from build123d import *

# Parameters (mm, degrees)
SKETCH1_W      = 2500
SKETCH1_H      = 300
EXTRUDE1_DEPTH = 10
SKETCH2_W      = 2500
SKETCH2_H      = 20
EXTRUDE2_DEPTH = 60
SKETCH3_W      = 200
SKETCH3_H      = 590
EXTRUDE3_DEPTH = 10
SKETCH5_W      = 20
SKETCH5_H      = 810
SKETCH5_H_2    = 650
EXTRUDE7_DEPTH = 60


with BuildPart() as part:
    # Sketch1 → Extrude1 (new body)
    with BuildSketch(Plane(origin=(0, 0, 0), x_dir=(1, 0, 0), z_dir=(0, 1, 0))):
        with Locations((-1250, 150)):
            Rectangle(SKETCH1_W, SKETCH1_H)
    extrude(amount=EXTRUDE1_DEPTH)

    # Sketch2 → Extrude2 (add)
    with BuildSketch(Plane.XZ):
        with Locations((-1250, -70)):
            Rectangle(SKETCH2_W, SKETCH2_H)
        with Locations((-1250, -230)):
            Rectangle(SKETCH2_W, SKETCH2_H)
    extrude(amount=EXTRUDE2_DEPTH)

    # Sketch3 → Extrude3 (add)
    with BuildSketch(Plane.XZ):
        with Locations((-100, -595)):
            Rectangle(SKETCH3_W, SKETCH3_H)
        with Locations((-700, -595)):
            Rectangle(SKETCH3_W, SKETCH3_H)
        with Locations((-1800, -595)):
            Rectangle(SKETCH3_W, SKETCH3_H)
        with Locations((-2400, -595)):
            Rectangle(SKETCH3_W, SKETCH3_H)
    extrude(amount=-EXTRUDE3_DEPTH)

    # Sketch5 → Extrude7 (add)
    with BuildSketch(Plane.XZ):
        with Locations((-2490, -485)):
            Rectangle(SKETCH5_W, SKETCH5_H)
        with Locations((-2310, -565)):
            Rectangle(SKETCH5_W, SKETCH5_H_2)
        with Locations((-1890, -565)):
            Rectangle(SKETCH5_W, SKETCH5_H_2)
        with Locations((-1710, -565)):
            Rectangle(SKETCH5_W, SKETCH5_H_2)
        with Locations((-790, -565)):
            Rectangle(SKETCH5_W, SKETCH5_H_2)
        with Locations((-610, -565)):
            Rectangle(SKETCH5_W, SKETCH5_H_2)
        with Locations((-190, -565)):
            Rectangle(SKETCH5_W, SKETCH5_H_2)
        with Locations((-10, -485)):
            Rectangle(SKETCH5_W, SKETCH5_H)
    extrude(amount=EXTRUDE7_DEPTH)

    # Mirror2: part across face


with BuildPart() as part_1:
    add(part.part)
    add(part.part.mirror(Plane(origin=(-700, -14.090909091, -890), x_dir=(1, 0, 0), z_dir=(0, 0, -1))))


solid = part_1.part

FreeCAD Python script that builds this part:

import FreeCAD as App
import Part
import Sketcher
from FreeCAD import Vector

doc = App.newDocument("Part")
params = doc.addObject("Spreadsheet::Sheet", "Params")
for row, (alias, value) in enumerate([
    ("sketch1_width", "2500 mm"),
    ("sketch1_height", "300 mm"),
    ("pad1_length", "10 mm"),
    ("sketch2_width", "2500 mm"),
    ("sketch2_height", "20 mm"),
    ("pad2_length", "60 mm"),
    ("sketch3_width", "200 mm"),
    ("sketch3_height", "590 mm"),
    ("pad3_length", "10 mm"),
    ("sketch4_width", "20 mm"),
    ("sketch4_height", "810 mm"),
    ("sketch4_height2", "650 mm"),
    ("pad4_length", "60 mm"),
], start=1):
    params.set(f"A{row}", alias)
    params.set(f"B{row}", "=" + value)
    params.setAlias(f"B{row}", alias)

body = doc.addObject("PartDesign::Body", "Body")

# Sketch on XZ plane
sketch1 = body.newObject("Sketcher::SketchObject", "Sketch")
sketch1.AttachmentSupport = (doc.getObject("XZ_Plane"), [""])
sketch1.MapMode = "FlatFace"
sketch1.addGeometry([
    Part.LineSegment(Vector(-2500, -300, 0), Vector(-2500, 0, 0)),
    Part.LineSegment(Vector(-2500, 0, 0), Vector(0, 0, 0)),
    Part.LineSegment(Vector(0, 0, 0), Vector(0, -300, 0)),
    Part.LineSegment(Vector(0, -300, 0), Vector(-2500, -300, 0)),
], False)
sketch1.addConstraint([
    Sketcher.Constraint("Coincident", 0, 2, 1, 1),
    Sketcher.Constraint("Coincident", 1, 2, 2, 1),
    Sketcher.Constraint("Coincident", 2, 2, 3, 1),
    Sketcher.Constraint("Coincident", 3, 2, 0, 1),
    Sketcher.Constraint("Vertical", 0),
    Sketcher.Constraint("Horizontal", 1),
    Sketcher.Constraint("Vertical", 2),
    Sketcher.Constraint("Horizontal", 3),
    Sketcher.Constraint("Coincident", 1, 2, -1, 1),
    Sketcher.Constraint("DistanceX", 1, 1, 1, 2, 2500.0),
    Sketcher.Constraint("DistanceY", 0, 1, 0, 2, 300.0),
])
sketch1.setExpression("Constraints[9]", "Params.sketch1_width")
sketch1.setExpression("Constraints[10]", "Params.sketch1_height")
pad1 = body.newObject("PartDesign::Pad", "Pad")
pad1.Profile = sketch1
pad1.setExpression("Length", "Params.pad1_length")
pad1.Reversed = True

# Sketch on XZ plane
sketch2 = body.newObject("Sketcher::SketchObject", "Sketch001")
sketch2.AttachmentSupport = (doc.getObject("XZ_Plane"), [""])
sketch2.MapMode = "FlatFace"
sketch2.addGeometry([
    Part.LineSegment(Vector(-2500, -60, 0), Vector(-2500, -80, 0)),  # 0
    Part.LineSegment(Vector(-2500, -80, 0), Vector(0, -80, 0)),  # 1
    Part.LineSegment(Vector(0, -80, 0), Vector(0, -60, 0)),  # 2
    Part.LineSegment(Vector(0, -60, 0), Vector(-2500, -60, 0)),  # 3
    Part.LineSegment(Vector(-2500, -220, 0), Vector(-2500, -240, 0)),  # 4
    Part.LineSegment(Vector(-2500, -240, 0), Vector(0, -240, 0)),  # 5
    Part.LineSegment(Vector(0, -240, 0), Vector(0, -220, 0)),  # 6
    Part.LineSegment(Vector(0, -220, 0), Vector(-2500, -220, 0)),  # 7
], False)
sketch2.addConstraint([
    Sketcher.Constraint("Coincident", 0, 2, 1, 1),
    Sketcher.Constraint("Coincident", 1, 2, 2, 1),
    Sketcher.Constraint("Coincident", 2, 2, 3, 1),
    Sketcher.Constraint("Coincident", 3, 2, 0, 1),
    Sketcher.Constraint("Coincident", 4, 2, 5, 1),
    Sketcher.Constraint("Coincident", 5, 2, 6, 1),
    Sketcher.Constraint("Coincident", 6, 2, 7, 1),
    Sketcher.Constraint("Coincident", 7, 2, 4, 1),
    Sketcher.Constraint("Vertical", 0),
    Sketcher.Constraint("Horizontal", 1),
    Sketcher.Constraint("Vertical", 2),
    Sketcher.Constraint("Horizontal", 3),
    Sketcher.Constraint("Vertical", 4),
    Sketcher.Constraint("Horizontal", 5),
    Sketcher.Constraint("Vertical", 6),
    Sketcher.Constraint("Horizontal", 7),
    Sketcher.Constraint("PointOnObject", 1, 2, -2),
    Sketcher.Constraint("PointOnObject", 5, 2, -2),
    Sketcher.Constraint("Vertical", 3, 2, 4, 2),
    Sketcher.Constraint("Equal", 2, 4),
    Sketcher.Constraint("DistanceX", 1, 1, 1, 2, 2500.0),
    Sketcher.Constraint("DistanceY", 0, 2, 0, 1, 20.0),
    Sketcher.Constraint("DistanceY", 0, 2, -1, 1, 80.0),
    Sketcher.Constraint("DistanceY", 4, 2, -1, 1, 240.0),
])
sketch2.setExpression("Constraints[20]", "Params.sketch2_width")
sketch2.setExpression("Constraints[21]", "Params.sketch2_height")
pad2 = body.newObject("PartDesign::Pad", "Pad001")
pad2.Profile = sketch2
pad2.setExpression("Length", "Params.pad2_length")

# Sketch on XZ plane
sketch3 = body.newObject("Sketcher::SketchObject", "Sketch002")
sketch3.AttachmentSupport = (doc.getObject("XZ_Plane"), [""])
sketch3.MapMode = "FlatFace"
sketch3.addGeometry([
    Part.LineSegment(Vector(-200, -300, 0), Vector(-200, -890, 0)),  # 0
    Part.LineSegment(Vector(-200, -890, 0), Vector(0, -890, 0)),  # 1
    Part.LineSegment(Vector(0, -890, 0), Vector(0, -300, 0)),  # 2
    Part.LineSegment(Vector(0, -300, 0), Vector(-200, -300, 0)),  # 3
    Part.LineSegment(Vector(-800, -300, 0), Vector(-800, -890, 0)),  # 4
    Part.LineSegment(Vector(-800, -890, 0), Vector(-600, -890, 0)),  # 5
    Part.LineSegment(Vector(-600, -890, 0), Vector(-600, -300, 0)),  # 6
    Part.LineSegment(Vector(-600, -300, 0), Vector(-800, -300, 0)),  # 7
    Part.LineSegment(Vector(-1900, -300, 0), Vector(-1900, -890, 0)),  # 8
    Part.LineSegment(Vector(-1900, -890, 0), Vector(-1700, -890, 0)),  # 9
    Part.LineSegment(Vector(-1700, -890, 0), Vector(-1700, -300, 0)),  # 10
    Part.LineSegment(Vector(-1700, -300, 0), Vector(-1900, -300, 0)),  # 11
    Part.LineSegment(Vector(-2500, -300, 0), Vector(-2500, -890, 0)),  # 12
    Part.LineSegment(Vector(-2500, -890, 0), Vector(-2300, -890, 0)),  # 13
    Part.LineSegment(Vector(-2300, -890, 0), Vector(-2300, -300, 0)),  # 14
    Part.LineSegment(Vector(-2300, -300, 0), Vector(-2500, -300, 0)),  # 15
], False)
sketch3.addConstraint([
    Sketcher.Constraint("Coincident", 0, 2, 1, 1),
    Sketcher.Constraint("Coincident", 1, 2, 2, 1),
    Sketcher.Constraint("Coincident", 2, 2, 3, 1),
    Sketcher.Constraint("Coincident", 3, 2, 0, 1),
    Sketcher.Constraint("Coincident", 4, 2, 5, 1),
    Sketcher.Constraint("Coincident", 5, 2, 6, 1),
    Sketcher.Constraint("Coincident", 6, 2, 7, 1),
    Sketcher.Constraint("Coincident", 7, 2, 4, 1),
    Sketcher.Constraint("Coincident", 8, 2, 9, 1),
    Sketcher.Constraint("Coincident", 9, 2, 10, 1),
    Sketcher.Constraint("Coincident", 10, 2, 11, 1),
    Sketcher.Constraint("Coincident", 11, 2, 8, 1),
    Sketcher.Constraint("Coincident", 12, 2, 13, 1),
    Sketcher.Constraint("Coincident", 13, 2, 14, 1),
    Sketcher.Constraint("Coincident", 14, 2, 15, 1),
    Sketcher.Constraint("Coincident", 15, 2, 12, 1),
    Sketcher.Constraint("Vertical", 0),
    Sketcher.Constraint("Horizontal", 1),
    Sketcher.Constraint("Vertical", 2),
    Sketcher.Constraint("Horizontal", 3),
    Sketcher.Constraint("Vertical", 4),
    Sketcher.Constraint("Horizontal", 5),
    Sketcher.Constraint("Vertical", 6),
    Sketcher.Constraint("Horizontal", 7),
    Sketcher.Constraint("Vertical", 8),
    Sketcher.Constraint("Horizontal", 9),
    Sketcher.Constraint("Vertical", 10),
    Sketcher.Constraint("Horizontal", 11),
    Sketcher.Constraint("Vertical", 12),
    Sketcher.Constraint("Horizontal", 13),
    Sketcher.Constraint("Vertical", 14),
    Sketcher.Constraint("Horizontal", 15),
    Sketcher.Constraint("PointOnObject", 1, 2, -2),
    Sketcher.Constraint("Horizontal", 1, 2, 4, 2),
    Sketcher.Constraint("Horizontal", 3, 2, 6, 2),
    Sketcher.Constraint("Horizontal", 5, 2, 8, 2),
    Sketcher.Constraint("Horizontal", 7, 2, 10, 2),
    Sketcher.Constraint("Horizontal", 9, 2, 12, 2),
    Sketcher.Constraint("Horizontal", 11, 2, 14, 2),
    Sketcher.Constraint("Equal", 3, 5),
    Sketcher.Constraint("Equal", 7, 9),
    Sketcher.Constraint("Equal", 11, 13),
    Sketcher.Constraint("DistanceX", 1, 1, 1, 2, 200.0),
    Sketcher.Constraint("DistanceY", 0, 2, 0, 1, 590.0),
    Sketcher.Constraint("DistanceY", 0, 2, -1, 1, 890.0),
    Sketcher.Constraint("DistanceX", 4, 2, -1, 1, 800.0),
    Sketcher.Constraint("DistanceX", 8, 2, -1, 1, 1900.0),
    Sketcher.Constraint("DistanceX", 12, 2, -1, 1, 2500.0),
])
sketch3.setExpression("Constraints[42]", "Params.sketch3_width")
sketch3.setExpression("Constraints[43]", "Params.sketch3_height")
pad3 = body.newObject("PartDesign::Pad", "Pad002")
pad3.Profile = sketch3
pad3.setExpression("Length", "Params.pad3_length")
pad3.Reversed = True

# Sketch on XZ plane
sketch4 = body.newObject("Sketcher::SketchObject", "Sketch003")
sketch4.AttachmentSupport = (doc.getObject("XZ_Plane"), [""])
sketch4.MapMode = "FlatFace"
sketch4.addGeometry([
    Part.LineSegment(Vector(-2500, -80, 0), Vector(-2500, -890, 0)),  # 0
    Part.LineSegment(Vector(-2500, -890, 0), Vector(-2480, -890, 0)),  # 1
    Part.LineSegment(Vector(-2480, -890, 0), Vector(-2480, -80, 0)),  # 2
    Part.LineSegment(Vector(-2480, -80, 0), Vector(-2500, -80, 0)),  # 3
    Part.LineSegment(Vector(-2320, -240, 0), Vector(-2320, -890, 0)),  # 4
    Part.LineSegment(Vector(-2320, -890, 0), Vector(-2300, -890, 0)),  # 5
    Part.LineSegment(Vector(-2300, -890, 0), Vector(-2300, -240, 0)),  # 6
    Part.LineSegment(Vector(-2300, -240, 0), Vector(-2320, -240, 0)),  # 7
    Part.LineSegment(Vector(-1900, -240, 0), Vector(-1900, -890, 0)),  # 8
    Part.LineSegment(Vector(-1900, -890, 0), Vector(-1880, -890, 0)),  # 9
    Part.LineSegment(Vector(-1880, -890, 0), Vector(-1880, -240, 0)),  # 10
    Part.LineSegment(Vector(-1880, -240, 0), Vector(-1900, -240, 0)),  # 11
    Part.LineSegment(Vector(-1720, -240, 0), Vector(-1720, -890, 0)),  # 12
    Part.LineSegment(Vector(-1720, -890, 0), Vector(-1700, -890, 0)),  # 13
    Part.LineSegment(Vector(-1700, -890, 0), Vector(-1700, -240, 0)),  # 14
    Part.LineSegment(Vector(-1700, -240, 0), Vector(-1720, -240, 0)),  # 15
    Part.LineSegment(Vector(-800, -240, 0), Vector(-800, -890, 0)),  # 16
    Part.LineSegment(Vector(-800, -890, 0), Vector(-780, -890, 0)),  # 17
    Part.LineSegment(Vector(-780, -890, 0), Vector(-780, -240, 0)),  # 18
    Part.LineSegment(Vector(-780, -240, 0), Vector(-800, -240, 0)),  # 19
    Part.LineSegment(Vector(-620, -240, 0), Vector(-620, -890, 0)),  # 20
    Part.LineSegment(Vector(-620, -890, 0), Vector(-600, -890, 0)),  # 21
    Part.LineSegment(Vector(-600, -890, 0), Vector(-600, -240, 0)),  # 22
    Part.LineSegment(Vector(-600, -240, 0), Vector(-620, -240, 0)),  # 23
    Part.LineSegment(Vector(-200, -240, 0), Vector(-200, -890, 0)),  # 24
    Part.LineSegment(Vector(-200, -890, 0), Vector(-180, -890, 0)),  # 25
    Part.LineSegment(Vector(-180, -890, 0), Vector(-180, -240, 0)),  # 26
    Part.LineSegment(Vector(-180, -240, 0), Vector(-200, -240, 0)),  # 27
    Part.LineSegment(Vector(-20, -80, 0), Vector(-20, -890, 0)),  # 28
    Part.LineSegment(Vector(-20, -890, 0), Vector(0, -890, 0)),  # 29
    Part.LineSegment(Vector(0, -890, 0), Vector(0, -80, 0)),  # 30
    Part.LineSegment(Vector(0, -80, 0), Vector(-20, -80, 0)),  # 31
], False)
sketch4.addConstraint([
    Sketcher.Constraint("Coincident", 0, 2, 1, 1),
    Sketcher.Constraint("Coincident", 1, 2, 2, 1),
    Sketcher.Constraint("Coincident", 2, 2, 3, 1),
    Sketcher.Constraint("Coincident", 3, 2, 0, 1),
    Sketcher.Constraint("Coincident", 4, 2, 5, 1),
    Sketcher.Constraint("Coincident", 5, 2, 6, 1),
    Sketcher.Constraint("Coincident", 6, 2, 7, 1),
    Sketcher.Constraint("Coincident", 7, 2, 4, 1),
    Sketcher.Constraint("Coincident", 8, 2, 9, 1),
    Sketcher.Constraint("Coincident", 9, 2, 10, 1),
    Sketcher.Constraint("Coincident", 10, 2, 11, 1),
    Sketcher.Constraint("Coincident", 11, 2, 8, 1),
    Sketcher.Constraint("Coincident", 12, 2, 13, 1),
    Sketcher.Constraint("Coincident", 13, 2, 14, 1),
    Sketcher.Constraint("Coincident", 14, 2, 15, 1),
    Sketcher.Constraint("Coincident", 15, 2, 12, 1),
    Sketcher.Constraint("Coincident", 16, 2, 17, 1),
    Sketcher.Constraint("Coincident", 17, 2, 18, 1),
    Sketcher.Constraint("Coincident", 18, 2, 19, 1),
    Sketcher.Constraint("Coincident", 19, 2, 16, 1),
    Sketcher.Constraint("Coincident", 20, 2, 21, 1),
    Sketcher.Constraint("Coincident", 21, 2, 22, 1),
    Sketcher.Constraint("Coincident", 22, 2, 23, 1),
    Sketcher.Constraint("Coincident", 23, 2, 20, 1),
    Sketcher.Constraint("Coincident", 24, 2, 25, 1),
    Sketcher.Constraint("Coincident", 25, 2, 26, 1),
    Sketcher.Constraint("Coincident", 26, 2, 27, 1),
    Sketcher.Constraint("Coincident", 27, 2, 24, 1),
    Sketcher.Constraint("Coincident", 28, 2, 29, 1),
    Sketcher.Constraint("Coincident", 29, 2, 30, 1),
    Sketcher.Constraint("Coincident", 30, 2, 31, 1),
    Sketcher.Constraint("Coincident", 31, 2, 28, 1),
    Sketcher.Constraint("Vertical", 0),
    Sketcher.Constraint("Horizontal", 1),
    Sketcher.Constraint("Vertical", 2),
    Sketcher.Constraint("Horizontal", 3),
    Sketcher.Constraint("Vertical", 4),
    Sketcher.Constraint("Horizontal", 5),
    Sketcher.Constraint("Vertical", 6),
    Sketcher.Constraint("Horizontal", 7),
    Sketcher.Constraint("Vertical", 8),
    Sketcher.Constraint("Horizontal", 9),
    Sketcher.Constraint("Vertical", 10),
    Sketcher.Constraint("Horizontal", 11),
    Sketcher.Constraint("Vertical", 12),
    Sketcher.Constraint("Horizontal", 13),
    Sketcher.Constraint("Vertical", 14),
    Sketcher.Constraint("Horizontal", 15),
    Sketcher.Constraint("Vertical", 16),
    Sketcher.Constraint("Horizontal", 17),
    Sketcher.Constraint("Vertical", 18),
    Sketcher.Constraint("Horizontal", 19),
    Sketcher.Constraint("Vertical", 20),
    Sketcher.Constraint("Horizontal", 21),
    Sketcher.Constraint("Vertical", 22),
    Sketcher.Constraint("Horizontal", 23),
    Sketcher.Constraint("Vertical", 24),
    Sketcher.Constraint("Horizontal", 25),
    Sketcher.Constraint("Vertical", 26),
    Sketcher.Constraint("Horizontal", 27),
    Sketcher.Constraint("Vertical", 28),
    Sketcher.Constraint("Horizontal", 29),
    Sketcher.Constraint("Vertical", 30),
    Sketcher.Constraint("Horizontal", 31),
    Sketcher.Constraint("PointOnObject", 29, 2, -2),
    Sketcher.Constraint("Horizontal", 1, 2, 4, 2),
    Sketcher.Constraint("Horizontal", 5, 2, 8, 2),
    Sketcher.Constraint("Horizontal", 7, 2, 10, 2),
    Sketcher.Constraint("Horizontal", 9, 2, 12, 2),
    Sketcher.Constraint("Horizontal", 11, 2, 14, 2),
    Sketcher.Constraint("Horizontal", 13, 2, 16, 2),
    Sketcher.Constraint("Horizontal", 15, 2, 18, 2),
    Sketcher.Constraint("Horizontal", 17, 2, 20, 2),
    Sketcher.Constraint("Horizontal", 19, 2, 22, 2),
    Sketcher.Constraint("Horizontal", 21, 2, 24, 2),
    Sketcher.Constraint("Horizontal", 23, 2, 26, 2),
    Sketcher.Constraint("Horizontal", 25, 2, 28, 2),
    Sketcher.Constraint("Horizontal", 3, 2, 30, 2),
    Sketcher.Constraint("Equal", 3, 5),
    Sketcher.Constraint("Equal", 7, 9),
    Sketcher.Constraint("Equal", 11, 13),
    Sketcher.Constraint("Equal", 15, 17),
    Sketcher.Constraint("Equal", 19, 21),
    Sketcher.Constraint("Equal", 23, 25),
    Sketcher.Constraint("Equal", 27, 29),
    Sketcher.Constraint("DistanceX", 1, 1, 1, 2, 20.0),
    Sketcher.Constraint("DistanceY", 0, 2, 0, 1, 810.0),
    Sketcher.Constraint("DistanceY", 4, 2, 4, 1, 650.0),
    Sketcher.Constraint("DistanceX", 0, 2, -1, 1, 2500.0),
    Sketcher.Constraint("DistanceY", 0, 2, -1, 1, 890.0),
    Sketcher.Constraint("DistanceX", 4, 2, -1, 1, 2320.0),
    Sketcher.Constraint("DistanceX", 8, 2, -1, 1, 1900.0),
    Sketcher.Constraint("DistanceX", 12, 2, -1, 1, 1720.0),
    Sketcher.Constraint("DistanceX", 16, 2, -1, 1, 800.0),
    Sketcher.Constraint("DistanceX", 20, 2, -1, 1, 620.0),
    Sketcher.Constraint("DistanceX", 24, 2, -1, 1, 200.0),
])
sketch4.setExpression("Constraints[85]", "Params.sketch4_width")
sketch4.setExpression("Constraints[86]", "Params.sketch4_height")
sketch4.setExpression("Constraints[87]", "Params.sketch4_height2")
pad4 = body.newObject("PartDesign::Pad", "Pad003")
pad4.Profile = sketch4
pad4.setExpression("Length", "Params.pad4_length")
body2 = doc.addObject("PartDesign::Body", "Body001")
doc.recompute()

body2.BaseFeature = body
doc.recompute()

mirroring = doc.addObject("Part::Mirroring", "Mirroring")
mirroring.Source = body
mirroring.Base = Vector(-700, -14.090909, -890)
mirroring.Normal = Vector(0, 0, -1)
body3 = doc.addObject("PartDesign::Body", "Body002")
body3.BaseFeature = mirroring
boolean = body2.newObject("PartDesign::Boolean", "Boolean")
boolean.Type = "Fuse"
boolean.addObjects([body3])
doc.recompute()
mirroring.Visibility = False

doc.recompute()
